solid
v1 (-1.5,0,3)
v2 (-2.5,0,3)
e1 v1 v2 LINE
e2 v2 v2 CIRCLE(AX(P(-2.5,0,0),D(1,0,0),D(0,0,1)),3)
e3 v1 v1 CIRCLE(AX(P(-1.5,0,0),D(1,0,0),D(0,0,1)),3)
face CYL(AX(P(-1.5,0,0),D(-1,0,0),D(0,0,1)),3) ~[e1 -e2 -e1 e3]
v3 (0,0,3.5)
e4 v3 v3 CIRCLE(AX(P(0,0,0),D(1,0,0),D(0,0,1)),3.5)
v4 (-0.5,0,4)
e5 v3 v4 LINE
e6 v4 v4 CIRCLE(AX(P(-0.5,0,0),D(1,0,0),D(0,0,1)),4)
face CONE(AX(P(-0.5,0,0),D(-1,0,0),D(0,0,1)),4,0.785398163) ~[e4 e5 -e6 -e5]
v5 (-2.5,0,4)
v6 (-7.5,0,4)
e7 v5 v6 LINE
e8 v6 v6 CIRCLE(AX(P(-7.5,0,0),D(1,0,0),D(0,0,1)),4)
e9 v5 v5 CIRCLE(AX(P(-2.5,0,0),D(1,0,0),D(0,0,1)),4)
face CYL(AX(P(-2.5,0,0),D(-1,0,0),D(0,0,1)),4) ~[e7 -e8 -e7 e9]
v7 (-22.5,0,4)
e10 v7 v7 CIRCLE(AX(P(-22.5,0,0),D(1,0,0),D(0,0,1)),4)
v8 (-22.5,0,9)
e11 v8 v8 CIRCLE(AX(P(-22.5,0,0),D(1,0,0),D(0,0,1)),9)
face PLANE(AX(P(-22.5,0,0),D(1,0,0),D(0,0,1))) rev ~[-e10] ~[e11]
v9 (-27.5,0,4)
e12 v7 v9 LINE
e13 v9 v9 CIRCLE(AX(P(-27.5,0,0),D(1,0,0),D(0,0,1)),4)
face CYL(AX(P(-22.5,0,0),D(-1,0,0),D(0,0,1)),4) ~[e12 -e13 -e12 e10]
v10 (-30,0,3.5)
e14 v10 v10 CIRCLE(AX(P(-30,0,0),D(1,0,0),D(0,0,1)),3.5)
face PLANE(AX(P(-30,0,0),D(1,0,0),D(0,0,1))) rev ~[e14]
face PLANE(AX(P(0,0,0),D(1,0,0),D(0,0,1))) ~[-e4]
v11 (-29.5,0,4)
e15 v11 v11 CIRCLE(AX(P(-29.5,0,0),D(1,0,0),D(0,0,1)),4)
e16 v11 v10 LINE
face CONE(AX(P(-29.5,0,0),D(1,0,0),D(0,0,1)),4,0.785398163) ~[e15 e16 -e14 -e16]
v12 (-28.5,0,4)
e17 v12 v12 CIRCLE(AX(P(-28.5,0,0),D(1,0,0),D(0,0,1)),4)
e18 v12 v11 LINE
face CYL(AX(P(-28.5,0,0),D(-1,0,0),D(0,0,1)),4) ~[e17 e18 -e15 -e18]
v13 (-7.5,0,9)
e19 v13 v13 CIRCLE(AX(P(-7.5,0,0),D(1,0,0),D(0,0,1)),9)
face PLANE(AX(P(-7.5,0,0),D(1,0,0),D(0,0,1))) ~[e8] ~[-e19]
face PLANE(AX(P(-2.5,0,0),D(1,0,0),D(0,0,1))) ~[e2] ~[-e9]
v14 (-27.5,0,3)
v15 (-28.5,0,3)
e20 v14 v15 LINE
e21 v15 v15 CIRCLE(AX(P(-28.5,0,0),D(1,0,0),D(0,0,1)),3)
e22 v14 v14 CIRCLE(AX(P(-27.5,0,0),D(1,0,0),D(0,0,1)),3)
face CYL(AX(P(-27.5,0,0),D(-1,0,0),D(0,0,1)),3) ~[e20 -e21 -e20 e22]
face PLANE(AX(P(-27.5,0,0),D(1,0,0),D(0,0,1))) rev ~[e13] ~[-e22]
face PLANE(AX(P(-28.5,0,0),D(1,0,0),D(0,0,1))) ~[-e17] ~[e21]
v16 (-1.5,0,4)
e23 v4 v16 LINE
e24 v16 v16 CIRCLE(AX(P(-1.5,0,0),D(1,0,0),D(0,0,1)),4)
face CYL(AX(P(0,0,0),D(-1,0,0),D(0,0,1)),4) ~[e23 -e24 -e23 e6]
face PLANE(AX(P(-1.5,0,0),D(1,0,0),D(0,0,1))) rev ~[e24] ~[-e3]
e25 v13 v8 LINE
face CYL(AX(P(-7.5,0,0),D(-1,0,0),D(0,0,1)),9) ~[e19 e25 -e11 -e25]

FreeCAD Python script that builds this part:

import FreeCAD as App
import Part
import Sketcher
Q = App.Units.Quantity


def edges_at(feature, points):
    """Names of the edges that pass closest to the given points."""
    edges = feature.Shape.Edges
    near = lambda p: min(range(len(edges)), key=lambda i: edges[i].distToShape(Part.Vertex(*p))[0])
    return sorted({f"Edge{near(p) + 1}" for p in points})

doc = App.newDocument("Part")
params = doc.addObject("Spreadsheet::Sheet", "Params")
for row, (alias, value) in enumerate([
    ("sketch1_width", "30 mm"),
    ("sketch1_width2", "1 mm"),
    ("sketch1_width3", "5 mm"),
    ("sketch1_width4", "15 mm"),
    ("sketch1_height", "4 mm"),
    ("revolution_angle", "360 deg"),
    ("chamfer_size", "0.5 mm"),
], start=1):
    params.set(f"A{row}", alias)
    params.set(f"B{row}", "=" + value)
    params.setAlias(f"B{row}", alias)

body = doc.addObject("PartDesign::Body", "Body")

# Sketch on XZ plane
sketch1 = body.newObject("Sketcher::SketchObject", "Sketch")
sketch1.AttachmentSupport = (doc.getObject("XZ_Plane"), [""])
sketch1.MapMode = "FlatFace"
sketch1.addGeometry(Part.LineSegment(App.Vector(-30, 0, 0), App.Vector(0, 0, 0)), False)
sketch1.addGeometry(Part.LineSegment(App.Vector(0, 0, 0), App.Vector(0, 4, 0)), False)
sketch1.addGeometry(Part.LineSegment(App.Vector(0, 4, 0), App.Vector(-1.5, 4, 0)), False)
sketch1.addGeometry(Part.LineSegment(App.Vector(-1.5, 4, 0), App.Vector(-1.5, 3, 0)), False)
sketch1.addGeometry(Part.LineSegment(App.Vector(-1.5, 3, 0), App.Vector(-2.5, 3, 0)), False)
sketch1.addGeometry(Part.LineSegment(App.Vector(-2.5, 3, 0), App.Vector(-2.5, 4, 0)), False)
sketch1.addGeometry(Part.LineSegment(App.Vector(-2.5, 4, 0), App.Vector(-7.5, 4, 0)), False)
sketch1.addGeometry(Part.LineSegment(App.Vector(-7.5, 4, 0), App.Vector(-7.5, 9, 0)), False)
sketch1.addGeometry(Part.LineSegment(App.Vector(-7.5, 9, 0), App.Vector(-22.5, 9, 0)), False)
sketch1.addGeometry(Part.LineSegment(App.Vector(-22.5, 9, 0), App.Vector(-22.5, 4, 0)), False)
sketch1.addGeometry(Part.LineSegment(App.Vector(-22.5, 4, 0), App.Vector(-27.5, 4, 0)), False)
sketch1.addGeometry(Part.LineSegment(App.Vector(-27.5, 4, 0), App.Vector(-27.5, 3, 0)), False)
sketch1.addGeometry(Part.LineSegment(App.Vector(-27.5, 3, 0), App.Vector(-28.5, 3, 0)), False)
sketch1.addGeometry(Part.LineSegment(App.Vector(-28.5, 3, 0), App.Vector(-28.5, 4, 0)), False)
sketch1.addGeometry(Part.LineSegment(App.Vector(-28.5, 4, 0), App.Vector(-30, 4, 0)), False)
sketch1.addGeometry(Part.LineSegment(App.Vector(-30, 4, 0), App.Vector(-30, 0, 0)), False)
sketch1.addConstraint(Sketcher.Constraint("Coincident", 0, 2, 1, 1))
sketch1.addConstraint(Sketcher.Constraint("Coincident", 1, 2, 2, 1))
sketch1.addConstraint(Sketcher.Constraint("Coincident", 2, 2, 3, 1))
sketch1.addConstraint(Sketcher.Constraint("Coincident", 3, 2, 4, 1))
sketch1.addConstraint(Sketcher.Constraint("Coincident", 4, 2, 5, 1))
sketch1.addConstraint(Sketcher.Constraint("Coincident", 5, 2, 6, 1))
sketch1.addConstraint(Sketcher.Constraint("Coincident", 6, 2, 7, 1))
sketch1.addConstraint(Sketcher.Constraint("Coincident", 7, 2, 8, 1))
sketch1.addConstraint(Sketcher.Constraint("Coincident", 8, 2, 9, 1))
sketch1.addConstraint(Sketcher.Constraint("Coincident", 9, 2, 10, 1))
sketch1.addConstraint(Sketcher.Constraint("Coincident", 10, 2, 11, 1))
sketch1.addConstraint(Sketcher.Constraint("Coincident", 11, 2, 12, 1))
sketch1.addConstraint(Sketcher.Constraint("Coincident", 12, 2, 13, 1))
sketch1.addConstraint(Sketcher.Constraint("Coincident", 13, 2, 14, 1))
sketch1.addConstraint(Sketcher.Constraint("Coincident", 14, 2, 15, 1))
sketch1.addConstraint(Sketcher.Constraint("Coincident", 15, 2, 0, 1))
sketch1.addConstraint(Sketcher.Constraint("Horizontal", 0))
sketch1.addConstraint(Sketcher.Constraint("Vertical", 1))
sketch1.addConstraint(Sketcher.Constraint("Horizontal", 2))
sketch1.addConstraint(Sketcher.Constraint("Vertical", 3))
sketch1.addConstraint(Sketcher.Constraint("Horizontal", 4))
sketch1.addConstraint(Sketcher.Constraint("Vertical", 5))
sketch1.addConstraint(Sketcher.Constraint("Horizontal", 6))
sketch1.addConstraint(Sketcher.Constraint("Vertical", 7))
sketch1.addConstraint(Sketcher.Constraint("Horizontal", 8))
sketch1.addConstraint(Sketcher.Constraint("Vertical", 9))
sketch1.addConstraint(Sketcher.Constraint("Horizontal", 10))
sketch1.addConstraint(Sketcher.Constraint("Vertical", 11))
sketch1.addConstraint(Sketcher.Constraint("Horizontal", 12))
sketch1.addConstraint(Sketcher.Constraint("Vertical", 13))
sketch1.addConstraint(Sketcher.Constraint("Horizontal", 14))
sketch1.addConstraint(Sketcher.Constraint("Vertical", 15))
sketch1.addConstraint(Sketcher.Constraint("Coincident", 0, 2, -1, 1))
sketch1.addConstraint(Sketcher.Constraint("Horizontal", 2, 2, 5, 2))
sketch1.addConstraint(Sketcher.Constraint("Horizontal", 6, 2, 9, 2))
sketch1.addConstraint(Sketcher.Constraint("Horizontal", 4, 2, 11, 2))
sketch1.addConstraint(Sketcher.Constraint("Horizontal", 10, 2, 13, 2))
sketch1.addConstraint(Sketcher.Constraint("Equal", 6, 10))
sketch1.addConstraint(Sketcher.Constraint("Equal", 4, 12))
sketch1.addConstraint(Sketcher.Constraint("Equal", 2, 14))
sketch1.addConstraint(Sketcher.Constraint("Equal", 12, 3))
sketch1.addConstraint(Sketcher.Constraint("Equal", 10, 7))
sketch1.addConstraint(Sketcher.Constraint("DistanceX", 0, 1, 0, 2, Q("30 mm")))
sketch1.addConstraint(Sketcher.Constraint("DistanceX", 4, 2, 4, 1, Q("1 mm")))
sketch1.addConstraint(Sketcher.Constraint("DistanceX", 6, 2, 6, 1, Q("5 mm")))
sketch1.addConstraint(Sketcher.Constraint("DistanceX", 8, 2, 8, 1, Q("15 mm")))
sketch1.addConstraint(Sketcher.Constraint("DistanceY", 1, 1, 1, 2, Q("4 mm")))
sketch1.setExpression("Constraints[42]", "Params.sketch1_width")
sketch1.setExpression("Constraints[43]", "Params.sketch1_width2")
sketch1.setExpression("Constraints[44]", "Params.sketch1_width3")
sketch1.setExpression("Constraints[45]", "Params.sketch1_width4")
sketch1.setExpression("Constraints[46]", "Params.sketch1_height")
revolution = body.newObject("PartDesign::Revolution", "Revolution")
revolution.Profile = sketch1
revolution.ReferenceAxis = (sketch1, ["H_Axis"])
revolution.setExpression("Angle", "Params.revolution_angle")
doc.recompute()

chamfer = body.newObject("PartDesign::Chamfer", "Chamfer")
chamfer.Base = (revolution, edges_at(revolution, [(0, 0, -4), (-30, 0, -4)]))
chamfer.setExpression("Size", "Params.chamfer_size")

doc.recompute()
